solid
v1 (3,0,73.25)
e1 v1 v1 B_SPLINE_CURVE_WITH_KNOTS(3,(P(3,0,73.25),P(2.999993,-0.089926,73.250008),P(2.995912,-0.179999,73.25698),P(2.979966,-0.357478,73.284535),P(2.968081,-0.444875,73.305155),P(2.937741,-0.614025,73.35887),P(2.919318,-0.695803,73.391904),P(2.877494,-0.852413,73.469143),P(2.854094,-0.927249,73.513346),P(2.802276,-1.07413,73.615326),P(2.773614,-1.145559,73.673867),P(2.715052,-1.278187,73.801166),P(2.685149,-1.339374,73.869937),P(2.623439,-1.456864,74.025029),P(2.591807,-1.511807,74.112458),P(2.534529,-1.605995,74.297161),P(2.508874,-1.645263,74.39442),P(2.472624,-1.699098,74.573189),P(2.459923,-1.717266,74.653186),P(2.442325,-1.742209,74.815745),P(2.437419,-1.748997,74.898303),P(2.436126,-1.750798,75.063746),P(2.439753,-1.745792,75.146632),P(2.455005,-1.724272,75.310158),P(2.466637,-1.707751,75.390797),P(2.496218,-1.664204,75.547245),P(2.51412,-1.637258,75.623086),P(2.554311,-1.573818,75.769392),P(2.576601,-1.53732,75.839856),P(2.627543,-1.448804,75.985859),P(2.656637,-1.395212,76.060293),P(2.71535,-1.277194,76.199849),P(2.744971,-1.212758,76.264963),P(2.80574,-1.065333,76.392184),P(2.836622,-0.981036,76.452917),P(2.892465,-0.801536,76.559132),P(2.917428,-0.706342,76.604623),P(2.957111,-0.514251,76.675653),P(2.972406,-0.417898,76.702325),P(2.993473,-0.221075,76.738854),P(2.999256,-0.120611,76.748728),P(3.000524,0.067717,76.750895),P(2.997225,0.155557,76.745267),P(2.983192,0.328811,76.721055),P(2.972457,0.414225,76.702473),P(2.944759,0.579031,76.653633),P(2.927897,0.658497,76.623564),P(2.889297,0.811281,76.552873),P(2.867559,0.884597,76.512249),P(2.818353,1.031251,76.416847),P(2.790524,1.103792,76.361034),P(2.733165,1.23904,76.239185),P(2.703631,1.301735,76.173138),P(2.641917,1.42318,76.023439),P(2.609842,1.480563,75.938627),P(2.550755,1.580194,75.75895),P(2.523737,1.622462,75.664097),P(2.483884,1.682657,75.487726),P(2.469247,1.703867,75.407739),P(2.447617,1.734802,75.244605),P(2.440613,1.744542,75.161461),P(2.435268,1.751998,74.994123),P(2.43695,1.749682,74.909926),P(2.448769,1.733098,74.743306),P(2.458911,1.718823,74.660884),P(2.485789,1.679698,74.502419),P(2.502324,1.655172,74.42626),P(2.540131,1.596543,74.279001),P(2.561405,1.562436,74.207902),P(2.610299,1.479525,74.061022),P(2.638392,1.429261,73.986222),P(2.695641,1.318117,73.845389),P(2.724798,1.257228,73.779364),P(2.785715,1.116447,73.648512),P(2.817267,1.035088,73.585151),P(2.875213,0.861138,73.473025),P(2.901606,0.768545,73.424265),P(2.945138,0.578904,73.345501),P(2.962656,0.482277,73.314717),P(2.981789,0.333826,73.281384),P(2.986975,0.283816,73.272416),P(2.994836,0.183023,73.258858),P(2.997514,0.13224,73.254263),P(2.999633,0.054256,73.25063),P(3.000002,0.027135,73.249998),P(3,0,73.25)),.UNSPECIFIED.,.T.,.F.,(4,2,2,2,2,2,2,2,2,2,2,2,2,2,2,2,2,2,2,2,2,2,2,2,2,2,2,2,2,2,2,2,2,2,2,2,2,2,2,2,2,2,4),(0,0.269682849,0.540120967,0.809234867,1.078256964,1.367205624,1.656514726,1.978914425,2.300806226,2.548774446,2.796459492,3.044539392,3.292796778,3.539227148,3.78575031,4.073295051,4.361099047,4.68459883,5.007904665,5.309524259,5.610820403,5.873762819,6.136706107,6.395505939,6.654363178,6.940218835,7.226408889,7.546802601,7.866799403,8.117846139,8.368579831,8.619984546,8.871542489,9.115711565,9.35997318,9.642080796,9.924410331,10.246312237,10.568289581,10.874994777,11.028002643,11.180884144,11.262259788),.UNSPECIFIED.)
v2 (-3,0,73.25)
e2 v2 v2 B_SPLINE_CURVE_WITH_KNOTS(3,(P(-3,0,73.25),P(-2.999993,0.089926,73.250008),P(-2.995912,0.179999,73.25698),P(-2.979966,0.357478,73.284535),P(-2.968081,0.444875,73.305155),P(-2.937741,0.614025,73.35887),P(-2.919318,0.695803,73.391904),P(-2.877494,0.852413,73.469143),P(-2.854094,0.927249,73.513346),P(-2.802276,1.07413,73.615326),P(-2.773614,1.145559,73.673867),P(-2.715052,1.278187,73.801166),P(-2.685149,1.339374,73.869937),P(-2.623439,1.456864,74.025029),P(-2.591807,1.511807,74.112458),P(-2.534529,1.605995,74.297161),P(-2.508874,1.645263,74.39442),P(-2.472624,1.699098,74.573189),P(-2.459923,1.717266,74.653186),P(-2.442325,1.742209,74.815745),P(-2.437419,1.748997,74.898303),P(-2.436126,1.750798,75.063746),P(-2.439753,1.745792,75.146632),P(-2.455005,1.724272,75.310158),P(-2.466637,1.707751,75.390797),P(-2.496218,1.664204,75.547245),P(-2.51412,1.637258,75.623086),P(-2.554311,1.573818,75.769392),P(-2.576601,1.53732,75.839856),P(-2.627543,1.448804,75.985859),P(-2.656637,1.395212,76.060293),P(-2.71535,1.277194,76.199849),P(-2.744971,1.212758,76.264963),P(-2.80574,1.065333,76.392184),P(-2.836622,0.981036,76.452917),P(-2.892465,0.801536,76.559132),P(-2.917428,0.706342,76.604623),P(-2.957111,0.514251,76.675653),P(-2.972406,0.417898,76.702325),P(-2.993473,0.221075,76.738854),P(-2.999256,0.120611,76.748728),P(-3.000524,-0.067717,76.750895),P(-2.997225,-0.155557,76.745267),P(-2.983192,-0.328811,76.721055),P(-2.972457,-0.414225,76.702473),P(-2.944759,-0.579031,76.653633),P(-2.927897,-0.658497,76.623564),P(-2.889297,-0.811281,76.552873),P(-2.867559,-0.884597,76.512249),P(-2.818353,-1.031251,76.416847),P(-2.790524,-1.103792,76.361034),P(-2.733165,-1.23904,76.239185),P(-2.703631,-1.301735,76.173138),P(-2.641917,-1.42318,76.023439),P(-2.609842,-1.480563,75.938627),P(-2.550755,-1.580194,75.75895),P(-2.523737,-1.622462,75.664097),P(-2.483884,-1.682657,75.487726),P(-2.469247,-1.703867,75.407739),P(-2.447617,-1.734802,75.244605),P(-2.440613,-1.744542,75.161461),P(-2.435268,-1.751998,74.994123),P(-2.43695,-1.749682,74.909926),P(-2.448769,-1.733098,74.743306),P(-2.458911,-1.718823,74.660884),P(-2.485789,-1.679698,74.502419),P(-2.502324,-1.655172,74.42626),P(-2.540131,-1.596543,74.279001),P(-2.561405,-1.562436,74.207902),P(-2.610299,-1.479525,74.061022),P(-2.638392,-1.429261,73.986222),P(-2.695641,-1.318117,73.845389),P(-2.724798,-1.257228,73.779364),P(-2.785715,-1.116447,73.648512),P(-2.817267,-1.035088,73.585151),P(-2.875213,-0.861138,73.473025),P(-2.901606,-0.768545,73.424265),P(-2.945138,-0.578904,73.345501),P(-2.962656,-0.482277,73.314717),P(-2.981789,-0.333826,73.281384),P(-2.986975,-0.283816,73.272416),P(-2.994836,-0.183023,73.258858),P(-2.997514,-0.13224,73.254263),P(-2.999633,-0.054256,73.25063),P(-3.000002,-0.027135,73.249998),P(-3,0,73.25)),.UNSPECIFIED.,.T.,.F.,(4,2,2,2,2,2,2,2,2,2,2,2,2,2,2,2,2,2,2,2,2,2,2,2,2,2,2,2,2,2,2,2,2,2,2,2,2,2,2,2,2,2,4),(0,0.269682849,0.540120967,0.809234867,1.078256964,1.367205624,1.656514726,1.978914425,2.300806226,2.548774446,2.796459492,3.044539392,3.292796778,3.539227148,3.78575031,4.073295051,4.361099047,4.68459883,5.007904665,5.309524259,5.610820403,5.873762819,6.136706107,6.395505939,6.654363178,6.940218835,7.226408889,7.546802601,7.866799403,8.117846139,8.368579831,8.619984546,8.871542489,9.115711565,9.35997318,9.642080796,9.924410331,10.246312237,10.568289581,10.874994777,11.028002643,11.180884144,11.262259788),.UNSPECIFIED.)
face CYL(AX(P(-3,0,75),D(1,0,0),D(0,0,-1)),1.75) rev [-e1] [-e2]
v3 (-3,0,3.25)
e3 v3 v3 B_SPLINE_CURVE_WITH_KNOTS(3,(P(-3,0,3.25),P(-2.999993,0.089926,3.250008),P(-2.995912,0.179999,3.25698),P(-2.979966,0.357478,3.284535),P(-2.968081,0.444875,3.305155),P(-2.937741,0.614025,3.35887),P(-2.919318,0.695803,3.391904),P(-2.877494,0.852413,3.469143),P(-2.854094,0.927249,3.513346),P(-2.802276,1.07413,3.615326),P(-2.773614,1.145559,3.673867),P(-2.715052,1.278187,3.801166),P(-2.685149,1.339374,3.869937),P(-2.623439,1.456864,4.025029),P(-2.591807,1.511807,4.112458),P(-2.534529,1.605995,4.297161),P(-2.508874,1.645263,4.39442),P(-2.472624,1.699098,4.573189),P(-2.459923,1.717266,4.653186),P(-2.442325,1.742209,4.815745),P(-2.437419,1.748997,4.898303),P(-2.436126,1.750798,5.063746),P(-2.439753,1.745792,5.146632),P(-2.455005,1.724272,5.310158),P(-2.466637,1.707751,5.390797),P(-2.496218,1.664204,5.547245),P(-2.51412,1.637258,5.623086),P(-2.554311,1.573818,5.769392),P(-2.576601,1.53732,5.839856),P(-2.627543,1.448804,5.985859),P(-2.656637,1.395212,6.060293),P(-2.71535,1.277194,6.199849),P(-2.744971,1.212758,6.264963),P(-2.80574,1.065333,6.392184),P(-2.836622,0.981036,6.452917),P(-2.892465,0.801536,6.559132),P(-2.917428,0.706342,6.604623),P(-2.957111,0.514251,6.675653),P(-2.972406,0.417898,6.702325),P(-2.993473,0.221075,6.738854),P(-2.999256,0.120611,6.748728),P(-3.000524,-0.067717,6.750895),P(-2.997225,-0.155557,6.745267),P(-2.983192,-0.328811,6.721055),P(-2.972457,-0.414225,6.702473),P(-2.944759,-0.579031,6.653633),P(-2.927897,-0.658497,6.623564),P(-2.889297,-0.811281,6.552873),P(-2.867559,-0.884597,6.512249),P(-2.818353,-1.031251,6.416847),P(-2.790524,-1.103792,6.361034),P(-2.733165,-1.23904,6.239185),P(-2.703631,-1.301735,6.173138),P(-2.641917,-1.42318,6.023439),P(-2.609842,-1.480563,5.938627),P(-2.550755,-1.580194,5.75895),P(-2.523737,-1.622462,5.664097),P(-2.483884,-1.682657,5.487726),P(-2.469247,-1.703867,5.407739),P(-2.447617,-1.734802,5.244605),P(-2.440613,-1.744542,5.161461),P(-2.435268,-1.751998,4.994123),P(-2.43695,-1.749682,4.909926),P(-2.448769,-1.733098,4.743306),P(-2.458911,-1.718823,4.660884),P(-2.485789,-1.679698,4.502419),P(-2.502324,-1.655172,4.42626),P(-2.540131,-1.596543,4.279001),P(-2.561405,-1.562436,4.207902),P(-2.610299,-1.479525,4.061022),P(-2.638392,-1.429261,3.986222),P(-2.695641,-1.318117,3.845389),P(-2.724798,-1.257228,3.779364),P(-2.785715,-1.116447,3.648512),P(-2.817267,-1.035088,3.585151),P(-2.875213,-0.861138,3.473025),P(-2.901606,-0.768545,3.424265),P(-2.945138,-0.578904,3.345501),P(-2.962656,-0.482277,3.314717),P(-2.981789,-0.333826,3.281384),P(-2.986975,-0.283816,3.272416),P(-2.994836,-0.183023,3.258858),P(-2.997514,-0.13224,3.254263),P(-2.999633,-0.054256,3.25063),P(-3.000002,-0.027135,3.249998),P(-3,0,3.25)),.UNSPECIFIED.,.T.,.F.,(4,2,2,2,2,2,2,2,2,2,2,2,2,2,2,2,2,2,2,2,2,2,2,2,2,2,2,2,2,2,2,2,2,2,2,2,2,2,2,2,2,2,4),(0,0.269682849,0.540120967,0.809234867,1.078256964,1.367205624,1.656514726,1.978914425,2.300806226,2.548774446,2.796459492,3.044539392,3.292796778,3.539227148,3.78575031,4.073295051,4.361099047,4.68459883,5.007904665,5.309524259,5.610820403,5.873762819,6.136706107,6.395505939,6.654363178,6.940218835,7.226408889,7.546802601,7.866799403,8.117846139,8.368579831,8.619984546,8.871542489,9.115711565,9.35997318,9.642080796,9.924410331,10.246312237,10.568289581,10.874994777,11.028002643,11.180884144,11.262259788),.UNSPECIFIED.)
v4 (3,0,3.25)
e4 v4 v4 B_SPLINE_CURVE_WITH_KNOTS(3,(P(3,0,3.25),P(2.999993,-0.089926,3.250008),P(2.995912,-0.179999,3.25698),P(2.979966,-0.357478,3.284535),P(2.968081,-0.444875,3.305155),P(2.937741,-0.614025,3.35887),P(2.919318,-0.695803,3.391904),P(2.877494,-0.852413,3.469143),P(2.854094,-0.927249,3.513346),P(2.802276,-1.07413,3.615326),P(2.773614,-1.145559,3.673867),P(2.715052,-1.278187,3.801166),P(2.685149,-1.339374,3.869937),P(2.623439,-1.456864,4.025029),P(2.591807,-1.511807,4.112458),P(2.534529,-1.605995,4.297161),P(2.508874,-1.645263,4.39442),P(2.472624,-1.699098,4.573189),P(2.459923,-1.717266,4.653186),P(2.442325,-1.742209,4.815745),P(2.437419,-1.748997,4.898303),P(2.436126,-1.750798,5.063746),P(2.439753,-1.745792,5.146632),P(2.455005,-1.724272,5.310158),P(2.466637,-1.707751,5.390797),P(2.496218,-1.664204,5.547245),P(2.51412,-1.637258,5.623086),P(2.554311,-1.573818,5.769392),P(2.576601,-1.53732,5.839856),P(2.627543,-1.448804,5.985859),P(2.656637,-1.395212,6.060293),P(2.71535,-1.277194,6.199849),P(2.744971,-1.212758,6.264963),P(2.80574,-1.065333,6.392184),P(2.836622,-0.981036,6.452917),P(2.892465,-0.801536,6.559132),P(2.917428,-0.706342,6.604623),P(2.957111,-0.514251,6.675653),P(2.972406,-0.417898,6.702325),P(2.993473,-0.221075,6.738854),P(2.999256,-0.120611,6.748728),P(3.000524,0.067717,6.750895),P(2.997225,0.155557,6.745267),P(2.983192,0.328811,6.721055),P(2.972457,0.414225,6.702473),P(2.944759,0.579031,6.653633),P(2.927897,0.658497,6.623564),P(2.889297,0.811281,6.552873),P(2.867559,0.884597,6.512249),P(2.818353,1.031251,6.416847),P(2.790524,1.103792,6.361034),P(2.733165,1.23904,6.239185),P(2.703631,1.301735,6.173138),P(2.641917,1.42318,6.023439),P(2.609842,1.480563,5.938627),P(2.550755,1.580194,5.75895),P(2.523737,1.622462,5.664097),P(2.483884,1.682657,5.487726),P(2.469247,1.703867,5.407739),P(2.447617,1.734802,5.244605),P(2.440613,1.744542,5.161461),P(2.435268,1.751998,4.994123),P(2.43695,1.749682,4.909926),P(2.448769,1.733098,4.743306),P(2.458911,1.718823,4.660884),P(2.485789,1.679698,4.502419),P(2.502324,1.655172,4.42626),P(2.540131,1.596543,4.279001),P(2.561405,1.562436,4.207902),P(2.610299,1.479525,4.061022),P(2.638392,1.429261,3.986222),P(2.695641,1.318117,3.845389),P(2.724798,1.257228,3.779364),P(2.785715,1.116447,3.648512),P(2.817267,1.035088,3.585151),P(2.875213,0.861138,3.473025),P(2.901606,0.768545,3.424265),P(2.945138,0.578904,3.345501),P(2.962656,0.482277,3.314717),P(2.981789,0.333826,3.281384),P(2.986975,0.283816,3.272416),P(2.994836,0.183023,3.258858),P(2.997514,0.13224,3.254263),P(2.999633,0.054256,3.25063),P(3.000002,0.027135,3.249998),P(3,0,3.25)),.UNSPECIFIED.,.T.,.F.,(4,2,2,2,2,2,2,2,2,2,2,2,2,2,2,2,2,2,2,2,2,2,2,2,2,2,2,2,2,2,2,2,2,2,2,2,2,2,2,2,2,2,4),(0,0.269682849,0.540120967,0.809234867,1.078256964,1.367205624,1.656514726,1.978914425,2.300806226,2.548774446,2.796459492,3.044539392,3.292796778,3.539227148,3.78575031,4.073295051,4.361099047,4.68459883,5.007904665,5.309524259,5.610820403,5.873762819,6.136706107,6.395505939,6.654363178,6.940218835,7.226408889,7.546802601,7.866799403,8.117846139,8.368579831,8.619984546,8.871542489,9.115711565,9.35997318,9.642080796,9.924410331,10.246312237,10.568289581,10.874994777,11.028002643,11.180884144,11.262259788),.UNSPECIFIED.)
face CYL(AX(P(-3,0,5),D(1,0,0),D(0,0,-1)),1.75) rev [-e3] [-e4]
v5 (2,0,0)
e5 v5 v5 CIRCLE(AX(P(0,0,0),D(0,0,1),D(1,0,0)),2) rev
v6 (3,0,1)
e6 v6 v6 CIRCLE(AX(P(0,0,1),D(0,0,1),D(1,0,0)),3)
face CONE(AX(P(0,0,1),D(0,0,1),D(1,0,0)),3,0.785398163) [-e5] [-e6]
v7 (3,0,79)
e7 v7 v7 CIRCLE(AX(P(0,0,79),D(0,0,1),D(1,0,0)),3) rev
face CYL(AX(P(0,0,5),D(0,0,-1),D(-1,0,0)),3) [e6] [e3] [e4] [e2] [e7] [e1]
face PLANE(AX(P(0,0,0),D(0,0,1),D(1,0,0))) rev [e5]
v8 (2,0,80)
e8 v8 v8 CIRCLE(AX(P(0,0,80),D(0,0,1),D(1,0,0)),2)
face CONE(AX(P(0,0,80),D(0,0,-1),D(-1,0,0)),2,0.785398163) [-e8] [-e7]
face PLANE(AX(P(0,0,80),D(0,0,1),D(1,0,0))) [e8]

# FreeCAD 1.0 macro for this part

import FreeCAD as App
import Part
import Sketcher
Q = App.Units.Quantity


def edges_at(feature, points):
    """Names of the edges that pass closest to the given points."""
    edges = feature.Shape.Edges
    near = lambda p: min(range(len(edges)), key=lambda i: edges[i].distToShape(Part.Vertex(*p))[0])
    return sorted({f"Edge{near(p) + 1}" for p in points})

doc = App.newDocument("Part")
body = doc.addObject("PartDesign::Body", "Body")

# Sketch on XY plane
sketch1 = body.newObject("Sketcher::SketchObject", "Sketch")
sketch1.AttachmentSupport = (doc.getObject("XY_Plane"), [""])
sketch1.MapMode = "FlatFace"
sketch1.addGeometry(Part.Circle(App.Vector(0, 0, 0), App.Vector(0, 0, 1), 3), False)
sketch1.addConstraint([
    Sketcher.Constraint("Coincident", 0, 3, -1, 1),
    Sketcher.Constraint("Diameter", 0, Q("6 mm")),
])
pad1 = body.newObject("PartDesign::Pad", "Pad")
pad1.Profile = sketch1
pad1.Length = 5

# Sketch on XY plane
sketch2 = body.newObject("Sketcher::SketchObject", "Sketch001")
sketch2.AttachmentSupport = (doc.getObject("XY_Plane"), [""])
sketch2.MapMode = "FlatFace"
sketch2.AttachmentOffset = App.Placement(App.Vector(0, 0, 5), App.Rotation())
sketch2.addGeometry(Part.Circle(App.Vector(0, 0, 0), App.Vector(0, 0, 1), 3), False)
sketch2.addConstraint([
    Sketcher.Constraint("Coincident", 0, 3, -1, 1),
    Sketcher.Constraint("Diameter", 0, Q("6 mm")),
])
pad2 = body.newObject("PartDesign::Pad", "Pad001")
pad2.Profile = sketch2
pad2.Length = 75

# Sketch on YZ plane
sketch3 = body.newObject("Sketcher::SketchObject", "Sketch002")
sketch3.AttachmentSupport = (doc.getObject("YZ_Plane"), [""])
sketch3.MapMode = "FlatFace"
sketch3.AttachmentOffset = App.Placement(App.Vector(0, 0, 3), App.Rotation())
sketch3.addGeometry([
    Part.Circle(App.Vector(0, 75, 0), App.Vector(0, 0, 1), 1.8),
    Part.Circle(App.Vector(0, 5, 0), App.Vector(0, 0, 1), 1.8),
], False)
sketch3.addConstraint([
    Sketcher.Constraint("Equal", 0, 1),
    Sketcher.Constraint("PointOnObject", 0, 3, -2),
    Sketcher.Constraint("PointOnObject", 1, 3, -2),
    Sketcher.Constraint("Diameter", 0, Q("3.5 mm")),
    Sketcher.Constraint("DistanceY", -1, 1, 0, 3, Q("75 mm")),
    Sketcher.Constraint("DistanceY", -1, 1, 1, 3, Q("5 mm")),
])
pocket1 = body.newObject("PartDesign::Pocket", "Pocket")
pocket1.Profile = sketch3
pocket1.Type = "ThroughAll"
doc.recompute()

chamfer = body.newObject("PartDesign::Chamfer", "Chamfer")
chamfer.Base = (pocket1, edges_at(pocket1, [(-3, 0, 0), (-3, 0, 80)]))
chamfer.Size = 1

doc.recompute()
